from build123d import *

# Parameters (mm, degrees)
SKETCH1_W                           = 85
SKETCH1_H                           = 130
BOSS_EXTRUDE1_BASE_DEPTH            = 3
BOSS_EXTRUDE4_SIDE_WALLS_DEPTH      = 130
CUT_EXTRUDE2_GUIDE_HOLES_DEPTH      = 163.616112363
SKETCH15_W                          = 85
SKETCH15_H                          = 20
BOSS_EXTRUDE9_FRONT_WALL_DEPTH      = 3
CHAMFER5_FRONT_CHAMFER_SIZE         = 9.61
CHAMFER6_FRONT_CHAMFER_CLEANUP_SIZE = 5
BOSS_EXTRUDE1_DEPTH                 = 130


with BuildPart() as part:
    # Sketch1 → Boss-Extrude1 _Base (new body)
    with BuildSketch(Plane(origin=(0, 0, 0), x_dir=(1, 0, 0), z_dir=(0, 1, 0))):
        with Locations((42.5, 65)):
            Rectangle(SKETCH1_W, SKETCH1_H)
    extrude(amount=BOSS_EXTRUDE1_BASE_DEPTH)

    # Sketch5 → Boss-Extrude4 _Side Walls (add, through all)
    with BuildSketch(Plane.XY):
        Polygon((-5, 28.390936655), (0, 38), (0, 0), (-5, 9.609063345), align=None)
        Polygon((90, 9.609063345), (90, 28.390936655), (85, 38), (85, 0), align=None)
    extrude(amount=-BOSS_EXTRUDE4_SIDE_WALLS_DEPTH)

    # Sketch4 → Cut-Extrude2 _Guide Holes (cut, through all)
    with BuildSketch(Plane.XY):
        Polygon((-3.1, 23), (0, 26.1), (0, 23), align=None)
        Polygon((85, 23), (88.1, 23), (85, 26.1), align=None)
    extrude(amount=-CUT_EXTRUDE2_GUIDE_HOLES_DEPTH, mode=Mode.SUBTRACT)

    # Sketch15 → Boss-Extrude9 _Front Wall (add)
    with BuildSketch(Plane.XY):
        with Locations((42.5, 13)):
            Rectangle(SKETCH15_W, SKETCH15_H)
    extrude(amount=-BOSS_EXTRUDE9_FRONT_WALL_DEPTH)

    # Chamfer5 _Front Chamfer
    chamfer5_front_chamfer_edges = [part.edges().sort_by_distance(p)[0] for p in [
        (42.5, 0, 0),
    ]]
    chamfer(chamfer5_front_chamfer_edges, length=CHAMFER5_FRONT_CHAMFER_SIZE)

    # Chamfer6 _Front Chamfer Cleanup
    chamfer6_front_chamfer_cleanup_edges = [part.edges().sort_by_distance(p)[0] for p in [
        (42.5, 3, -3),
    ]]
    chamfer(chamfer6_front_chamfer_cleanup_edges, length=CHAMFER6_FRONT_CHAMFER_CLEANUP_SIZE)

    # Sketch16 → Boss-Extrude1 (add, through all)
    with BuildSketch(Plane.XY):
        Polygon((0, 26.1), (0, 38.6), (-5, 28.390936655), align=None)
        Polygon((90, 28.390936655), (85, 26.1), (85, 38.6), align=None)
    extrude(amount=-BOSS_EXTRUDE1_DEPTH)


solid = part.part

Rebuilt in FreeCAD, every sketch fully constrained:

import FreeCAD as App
import Part
import Sketcher
Q = App.Units.Quantity


def edges_at(feature, points):
    """Names of the edges that pass closest to the given points."""
    edges = feature.Shape.Edges
    near = lambda p: min(range(len(edges)), key=lambda i: edges[i].distToShape(Part.Vertex(*p))[0])
    return sorted({f"Edge{near(p) + 1}" for p in points})


def add_polygon(sketch, points):
    """Adds a closed chain of lines whose ends are joined by coincident constraints."""
    first, n = sketch.GeometryCount, len(points)
    for a, b in zip(points, points[1:] + points[:1]):
        sketch.addGeometry(Part.LineSegment(App.Vector(*a, 0), App.Vector(*b, 0)), False)
    for i in range(n):
        sketch.addConstraint(Sketcher.Constraint("Coincident", first + i, 2, first + (i + 1) % n, 1))

doc = App.newDocument("Part")
body = doc.addObject("PartDesign::Body", "Body")

# Sketch on XZ plane
sketch1 = doc.addObject("Sketcher::SketchObject", "Sketch")
body.addObject(sketch1)
sketch1.AttachmentSupport = (doc.XZ_Plane, [""])
sketch1.MapMode = "FlatFace"
add_polygon(sketch1, [(0, -130), (0, 0), (85, 0), (85, -130)])  # lines 0-3
sketch1.addConstraint(Sketcher.Constraint("Vertical", 0))
sketch1.addConstraint(Sketcher.Constraint("Horizontal", 1))
sketch1.addConstraint(Sketcher.Constraint("Vertical", 2))
sketch1.addConstraint(Sketcher.Constraint("Horizontal", 3))
sketch1.addConstraint(Sketcher.Constraint("Coincident", 0, 2, -1, 1))
sketch1.addConstraint(Sketcher.Constraint("DistanceX", 1, 1, 1, 2, Q("85 mm")))
sketch1.addConstraint(Sketcher.Constraint("DistanceY", 0, 1, 0, 2, Q("130 mm")))
pad1 = doc.addObject("PartDesign::Pad", "Pad")
body.addObject(pad1)
pad1.Profile = sketch1
pad1.Length = 3
pad1.Reversed = True

# Sketch on XY plane
sketch2 = doc.addObject("Sketcher::SketchObject", "Sketch001")
body.addObject(sketch2)
sketch2.AttachmentSupport = (doc.XY_Plane, [""])
sketch2.MapMode = "FlatFace"
add_polygon(sketch2, [(0, 38), (-5, 28), (-5, 10), (0, 0)])  # lines 0-3
add_polygon(sketch2, [(90, 10), (90, 28), (85, 38), (85, 0)])  # lines 4-7
sketch2.addConstraint(Sketcher.Constraint("Vertical", 1))
sketch2.addConstraint(Sketcher.Constraint("Vertical", 3))
sketch2.addConstraint(Sketcher.Constraint("Vertical", 4))
sketch2.addConstraint(Sketcher.Constraint("Vertical", 6))
sketch2.addConstraint(Sketcher.Constraint("Coincident", 2, 2, -1, 1))
sketch2.addConstraint(Sketcher.Constraint("PointOnObject", 6, 2, -1))
sketch2.addConstraint(Sketcher.Constraint("Parallel", 2, 5))
sketch2.addConstraint(Sketcher.Constraint("Parallel", 0, 7))
sketch2.addConstraint(Sketcher.Constraint("Horizontal", 0, 2, 4, 2))
sketch2.addConstraint(Sketcher.Constraint("Horizontal", 3, 2, 5, 2))
sketch2.addConstraint(Sketcher.Constraint("Horizontal", 1, 2, 7, 2))
sketch2.addConstraint(Sketcher.Constraint("DistanceY", 3, 1, 3, 2, Q("38 mm")))
sketch2.addConstraint(Sketcher.Constraint("DistanceX", 0, 2, -1, 1, Q("5 mm")))
sketch2.addConstraint(Sketcher.Constraint("DistanceX", -1, 1, 4, 2, Q("90 mm")))
sketch2.addConstraint(Sketcher.Constraint("DistanceY", 1, 2, 1, 1, Q("18.781873 mm")))
pad2 = doc.addObject("PartDesign::Pad", "Pad001")
body.addObject(pad2)
pad2.Profile = sketch2
pad2.Length = 130
pad2.Reversed = True

# Sketch on XY plane
sketch3 = doc.addObject("Sketcher::SketchObject", "Sketch002")
body.addObject(sketch3)
sketch3.AttachmentSupport = (doc.XY_Plane, [""])
sketch3.MapMode = "FlatFace"
add_polygon(sketch3, [(0, 26.1), (-3.1, 23), (0, 23)])  # lines 0-2
add_polygon(sketch3, [(85, 23), (88.1, 23), (85, 26.1)])  # lines 3-5
sketch3.addConstraint(Sketcher.Constraint("Horizontal", 1))
sketch3.addConstraint(Sketcher.Constraint("Vertical", 2))
sketch3.addConstraint(Sketcher.Constraint("Horizontal", 3))
sketch3.addConstraint(Sketcher.Constraint("Vertical", 5))
sketch3.addConstraint(Sketcher.Constraint("PointOnObject", 1, 2, -2))
sketch3.addConstraint(Sketcher.Constraint("Perpendicular", 0, 4))
sketch3.addConstraint(Sketcher.Constraint("Horizontal", 1, 2, 3, 2))
sketch3.addConstraint(Sketcher.Constraint("Horizontal", 2, 2, 4, 2))
sketch3.addConstraint(Sketcher.Constraint("Equal", 1, 3))
sketch3.addConstraint(Sketcher.Constraint("DistanceX", 1, 1, 1, 2, Q("3.1 mm")))
sketch3.addConstraint(Sketcher.Constraint("DistanceY", -1, 1, 0, 2, Q("23 mm")))
sketch3.addConstraint(Sketcher.Constraint("DistanceX", -1, 1, 4, 2, Q("85 mm")))
pocket1 = doc.addObject("PartDesign::Pocket", "Pocket")
body.addObject(pocket1)
pocket1.Profile = sketch3
pocket1.Type = "ThroughAll"

# Sketch on XY plane
sketch4 = doc.addObject("Sketcher::SketchObject", "Sketch003")
body.addObject(sketch4)
sketch4.AttachmentSupport = (doc.XY_Plane, [""])
sketch4.MapMode = "FlatFace"
add_polygon(sketch4, [(0, 23), (0, 3), (85, 3), (85, 23)])  # lines 0-3
sketch4.addConstraint(Sketcher.Constraint("Vertical", 0))
sketch4.addConstraint(Sketcher.Constraint("Horizontal", 1))
sketch4.addConstraint(Sketcher.Constraint("Vertical", 2))
sketch4.addConstraint(Sketcher.Constraint("Horizontal", 3))
sketch4.addConstraint(Sketcher.Constraint("PointOnObject", 0, 2, -2))
sketch4.addConstraint(Sketcher.Constraint("DistanceX", 1, 1, 1, 2, Q("85 mm")))
sketch4.addConstraint(Sketcher.Constraint("DistanceY", 0, 2, 0, 1, Q("20 mm")))
sketch4.addConstraint(Sketcher.Constraint("DistanceY", -1, 1, 0, 2, Q("3 mm")))
pad3 = doc.addObject("PartDesign::Pad", "Pad002")
body.addObject(pad3)
pad3.Profile = sketch4
pad3.Length = 3
pad3.Reversed = True
doc.recompute()

chamfer = doc.addObject("PartDesign::Chamfer", "Chamfer")
body.addObject(chamfer)
chamfer.Base = (pad3, edges_at(pad3, [(42.5, 0, 0)]))
chamfer.Size = 9.61
doc.recompute()

chamfer2 = doc.addObject("PartDesign::Chamfer", "Chamfer001")
body.addObject(chamfer2)
chamfer2.Base = (chamfer, edges_at(chamfer, [(42.5, 3, -3)]))
chamfer2.Size = 5

# Sketch on XY plane
sketch5 = doc.addObject("Sketcher::SketchObject", "Sketch004")
body.addObject(sketch5)
sketch5.AttachmentSupport = (doc.XY_Plane, [""])
sketch5.MapMode = "FlatFace"
add_polygon(sketch5, [(0, 26), (0, 39), (-5, 28)])  # lines 0-2
add_polygon(sketch5, [(85, 26), (90, 28), (85, 39)])  # lines 3-5
sketch5.addConstraint(Sketcher.Constraint("Vertical", 0))
sketch5.addConstraint(Sketcher.Constraint("Vertical", 5))
sketch5.addConstraint(Sketcher.Constraint("PointOnObject", 0, 2, -2))
sketch5.addConstraint(Sketcher.Constraint("Horizontal", 1, 2, 3, 2))
sketch5.addConstraint(Sketcher.Constraint("Horizontal", 0, 2, 4, 2))
sketch5.addConstraint(Sketcher.Constraint("Horizontal", 2, 2, 5, 2))
sketch5.addConstraint(Sketcher.Constraint("Equal", 2, 3))
sketch5.addConstraint(Sketcher.Constraint("DistanceY", 0, 1, 0, 2, Q("12.5 mm")))
sketch5.addConstraint(Sketcher.Constraint("DistanceX", 1, 2, -1, 1, Q("5 mm")))
sketch5.addConstraint(Sketcher.Constraint("DistanceX", -1, 1, 3, 2, Q("90 mm")))
sketch5.addConstraint(Sketcher.Constraint("DistanceY", -1, 1, 0, 2, Q("38.6 mm")))
sketch5.addConstraint(Sketcher.Constraint("Distance", 1, Q("11.367716 mm")))
pad4 = doc.addObject("PartDesign::Pad", "Pad003")
body.addObject(pad4)
pad4.Profile = sketch5
pad4.Length = 130
pad4.Reversed = True

doc.recompute()
